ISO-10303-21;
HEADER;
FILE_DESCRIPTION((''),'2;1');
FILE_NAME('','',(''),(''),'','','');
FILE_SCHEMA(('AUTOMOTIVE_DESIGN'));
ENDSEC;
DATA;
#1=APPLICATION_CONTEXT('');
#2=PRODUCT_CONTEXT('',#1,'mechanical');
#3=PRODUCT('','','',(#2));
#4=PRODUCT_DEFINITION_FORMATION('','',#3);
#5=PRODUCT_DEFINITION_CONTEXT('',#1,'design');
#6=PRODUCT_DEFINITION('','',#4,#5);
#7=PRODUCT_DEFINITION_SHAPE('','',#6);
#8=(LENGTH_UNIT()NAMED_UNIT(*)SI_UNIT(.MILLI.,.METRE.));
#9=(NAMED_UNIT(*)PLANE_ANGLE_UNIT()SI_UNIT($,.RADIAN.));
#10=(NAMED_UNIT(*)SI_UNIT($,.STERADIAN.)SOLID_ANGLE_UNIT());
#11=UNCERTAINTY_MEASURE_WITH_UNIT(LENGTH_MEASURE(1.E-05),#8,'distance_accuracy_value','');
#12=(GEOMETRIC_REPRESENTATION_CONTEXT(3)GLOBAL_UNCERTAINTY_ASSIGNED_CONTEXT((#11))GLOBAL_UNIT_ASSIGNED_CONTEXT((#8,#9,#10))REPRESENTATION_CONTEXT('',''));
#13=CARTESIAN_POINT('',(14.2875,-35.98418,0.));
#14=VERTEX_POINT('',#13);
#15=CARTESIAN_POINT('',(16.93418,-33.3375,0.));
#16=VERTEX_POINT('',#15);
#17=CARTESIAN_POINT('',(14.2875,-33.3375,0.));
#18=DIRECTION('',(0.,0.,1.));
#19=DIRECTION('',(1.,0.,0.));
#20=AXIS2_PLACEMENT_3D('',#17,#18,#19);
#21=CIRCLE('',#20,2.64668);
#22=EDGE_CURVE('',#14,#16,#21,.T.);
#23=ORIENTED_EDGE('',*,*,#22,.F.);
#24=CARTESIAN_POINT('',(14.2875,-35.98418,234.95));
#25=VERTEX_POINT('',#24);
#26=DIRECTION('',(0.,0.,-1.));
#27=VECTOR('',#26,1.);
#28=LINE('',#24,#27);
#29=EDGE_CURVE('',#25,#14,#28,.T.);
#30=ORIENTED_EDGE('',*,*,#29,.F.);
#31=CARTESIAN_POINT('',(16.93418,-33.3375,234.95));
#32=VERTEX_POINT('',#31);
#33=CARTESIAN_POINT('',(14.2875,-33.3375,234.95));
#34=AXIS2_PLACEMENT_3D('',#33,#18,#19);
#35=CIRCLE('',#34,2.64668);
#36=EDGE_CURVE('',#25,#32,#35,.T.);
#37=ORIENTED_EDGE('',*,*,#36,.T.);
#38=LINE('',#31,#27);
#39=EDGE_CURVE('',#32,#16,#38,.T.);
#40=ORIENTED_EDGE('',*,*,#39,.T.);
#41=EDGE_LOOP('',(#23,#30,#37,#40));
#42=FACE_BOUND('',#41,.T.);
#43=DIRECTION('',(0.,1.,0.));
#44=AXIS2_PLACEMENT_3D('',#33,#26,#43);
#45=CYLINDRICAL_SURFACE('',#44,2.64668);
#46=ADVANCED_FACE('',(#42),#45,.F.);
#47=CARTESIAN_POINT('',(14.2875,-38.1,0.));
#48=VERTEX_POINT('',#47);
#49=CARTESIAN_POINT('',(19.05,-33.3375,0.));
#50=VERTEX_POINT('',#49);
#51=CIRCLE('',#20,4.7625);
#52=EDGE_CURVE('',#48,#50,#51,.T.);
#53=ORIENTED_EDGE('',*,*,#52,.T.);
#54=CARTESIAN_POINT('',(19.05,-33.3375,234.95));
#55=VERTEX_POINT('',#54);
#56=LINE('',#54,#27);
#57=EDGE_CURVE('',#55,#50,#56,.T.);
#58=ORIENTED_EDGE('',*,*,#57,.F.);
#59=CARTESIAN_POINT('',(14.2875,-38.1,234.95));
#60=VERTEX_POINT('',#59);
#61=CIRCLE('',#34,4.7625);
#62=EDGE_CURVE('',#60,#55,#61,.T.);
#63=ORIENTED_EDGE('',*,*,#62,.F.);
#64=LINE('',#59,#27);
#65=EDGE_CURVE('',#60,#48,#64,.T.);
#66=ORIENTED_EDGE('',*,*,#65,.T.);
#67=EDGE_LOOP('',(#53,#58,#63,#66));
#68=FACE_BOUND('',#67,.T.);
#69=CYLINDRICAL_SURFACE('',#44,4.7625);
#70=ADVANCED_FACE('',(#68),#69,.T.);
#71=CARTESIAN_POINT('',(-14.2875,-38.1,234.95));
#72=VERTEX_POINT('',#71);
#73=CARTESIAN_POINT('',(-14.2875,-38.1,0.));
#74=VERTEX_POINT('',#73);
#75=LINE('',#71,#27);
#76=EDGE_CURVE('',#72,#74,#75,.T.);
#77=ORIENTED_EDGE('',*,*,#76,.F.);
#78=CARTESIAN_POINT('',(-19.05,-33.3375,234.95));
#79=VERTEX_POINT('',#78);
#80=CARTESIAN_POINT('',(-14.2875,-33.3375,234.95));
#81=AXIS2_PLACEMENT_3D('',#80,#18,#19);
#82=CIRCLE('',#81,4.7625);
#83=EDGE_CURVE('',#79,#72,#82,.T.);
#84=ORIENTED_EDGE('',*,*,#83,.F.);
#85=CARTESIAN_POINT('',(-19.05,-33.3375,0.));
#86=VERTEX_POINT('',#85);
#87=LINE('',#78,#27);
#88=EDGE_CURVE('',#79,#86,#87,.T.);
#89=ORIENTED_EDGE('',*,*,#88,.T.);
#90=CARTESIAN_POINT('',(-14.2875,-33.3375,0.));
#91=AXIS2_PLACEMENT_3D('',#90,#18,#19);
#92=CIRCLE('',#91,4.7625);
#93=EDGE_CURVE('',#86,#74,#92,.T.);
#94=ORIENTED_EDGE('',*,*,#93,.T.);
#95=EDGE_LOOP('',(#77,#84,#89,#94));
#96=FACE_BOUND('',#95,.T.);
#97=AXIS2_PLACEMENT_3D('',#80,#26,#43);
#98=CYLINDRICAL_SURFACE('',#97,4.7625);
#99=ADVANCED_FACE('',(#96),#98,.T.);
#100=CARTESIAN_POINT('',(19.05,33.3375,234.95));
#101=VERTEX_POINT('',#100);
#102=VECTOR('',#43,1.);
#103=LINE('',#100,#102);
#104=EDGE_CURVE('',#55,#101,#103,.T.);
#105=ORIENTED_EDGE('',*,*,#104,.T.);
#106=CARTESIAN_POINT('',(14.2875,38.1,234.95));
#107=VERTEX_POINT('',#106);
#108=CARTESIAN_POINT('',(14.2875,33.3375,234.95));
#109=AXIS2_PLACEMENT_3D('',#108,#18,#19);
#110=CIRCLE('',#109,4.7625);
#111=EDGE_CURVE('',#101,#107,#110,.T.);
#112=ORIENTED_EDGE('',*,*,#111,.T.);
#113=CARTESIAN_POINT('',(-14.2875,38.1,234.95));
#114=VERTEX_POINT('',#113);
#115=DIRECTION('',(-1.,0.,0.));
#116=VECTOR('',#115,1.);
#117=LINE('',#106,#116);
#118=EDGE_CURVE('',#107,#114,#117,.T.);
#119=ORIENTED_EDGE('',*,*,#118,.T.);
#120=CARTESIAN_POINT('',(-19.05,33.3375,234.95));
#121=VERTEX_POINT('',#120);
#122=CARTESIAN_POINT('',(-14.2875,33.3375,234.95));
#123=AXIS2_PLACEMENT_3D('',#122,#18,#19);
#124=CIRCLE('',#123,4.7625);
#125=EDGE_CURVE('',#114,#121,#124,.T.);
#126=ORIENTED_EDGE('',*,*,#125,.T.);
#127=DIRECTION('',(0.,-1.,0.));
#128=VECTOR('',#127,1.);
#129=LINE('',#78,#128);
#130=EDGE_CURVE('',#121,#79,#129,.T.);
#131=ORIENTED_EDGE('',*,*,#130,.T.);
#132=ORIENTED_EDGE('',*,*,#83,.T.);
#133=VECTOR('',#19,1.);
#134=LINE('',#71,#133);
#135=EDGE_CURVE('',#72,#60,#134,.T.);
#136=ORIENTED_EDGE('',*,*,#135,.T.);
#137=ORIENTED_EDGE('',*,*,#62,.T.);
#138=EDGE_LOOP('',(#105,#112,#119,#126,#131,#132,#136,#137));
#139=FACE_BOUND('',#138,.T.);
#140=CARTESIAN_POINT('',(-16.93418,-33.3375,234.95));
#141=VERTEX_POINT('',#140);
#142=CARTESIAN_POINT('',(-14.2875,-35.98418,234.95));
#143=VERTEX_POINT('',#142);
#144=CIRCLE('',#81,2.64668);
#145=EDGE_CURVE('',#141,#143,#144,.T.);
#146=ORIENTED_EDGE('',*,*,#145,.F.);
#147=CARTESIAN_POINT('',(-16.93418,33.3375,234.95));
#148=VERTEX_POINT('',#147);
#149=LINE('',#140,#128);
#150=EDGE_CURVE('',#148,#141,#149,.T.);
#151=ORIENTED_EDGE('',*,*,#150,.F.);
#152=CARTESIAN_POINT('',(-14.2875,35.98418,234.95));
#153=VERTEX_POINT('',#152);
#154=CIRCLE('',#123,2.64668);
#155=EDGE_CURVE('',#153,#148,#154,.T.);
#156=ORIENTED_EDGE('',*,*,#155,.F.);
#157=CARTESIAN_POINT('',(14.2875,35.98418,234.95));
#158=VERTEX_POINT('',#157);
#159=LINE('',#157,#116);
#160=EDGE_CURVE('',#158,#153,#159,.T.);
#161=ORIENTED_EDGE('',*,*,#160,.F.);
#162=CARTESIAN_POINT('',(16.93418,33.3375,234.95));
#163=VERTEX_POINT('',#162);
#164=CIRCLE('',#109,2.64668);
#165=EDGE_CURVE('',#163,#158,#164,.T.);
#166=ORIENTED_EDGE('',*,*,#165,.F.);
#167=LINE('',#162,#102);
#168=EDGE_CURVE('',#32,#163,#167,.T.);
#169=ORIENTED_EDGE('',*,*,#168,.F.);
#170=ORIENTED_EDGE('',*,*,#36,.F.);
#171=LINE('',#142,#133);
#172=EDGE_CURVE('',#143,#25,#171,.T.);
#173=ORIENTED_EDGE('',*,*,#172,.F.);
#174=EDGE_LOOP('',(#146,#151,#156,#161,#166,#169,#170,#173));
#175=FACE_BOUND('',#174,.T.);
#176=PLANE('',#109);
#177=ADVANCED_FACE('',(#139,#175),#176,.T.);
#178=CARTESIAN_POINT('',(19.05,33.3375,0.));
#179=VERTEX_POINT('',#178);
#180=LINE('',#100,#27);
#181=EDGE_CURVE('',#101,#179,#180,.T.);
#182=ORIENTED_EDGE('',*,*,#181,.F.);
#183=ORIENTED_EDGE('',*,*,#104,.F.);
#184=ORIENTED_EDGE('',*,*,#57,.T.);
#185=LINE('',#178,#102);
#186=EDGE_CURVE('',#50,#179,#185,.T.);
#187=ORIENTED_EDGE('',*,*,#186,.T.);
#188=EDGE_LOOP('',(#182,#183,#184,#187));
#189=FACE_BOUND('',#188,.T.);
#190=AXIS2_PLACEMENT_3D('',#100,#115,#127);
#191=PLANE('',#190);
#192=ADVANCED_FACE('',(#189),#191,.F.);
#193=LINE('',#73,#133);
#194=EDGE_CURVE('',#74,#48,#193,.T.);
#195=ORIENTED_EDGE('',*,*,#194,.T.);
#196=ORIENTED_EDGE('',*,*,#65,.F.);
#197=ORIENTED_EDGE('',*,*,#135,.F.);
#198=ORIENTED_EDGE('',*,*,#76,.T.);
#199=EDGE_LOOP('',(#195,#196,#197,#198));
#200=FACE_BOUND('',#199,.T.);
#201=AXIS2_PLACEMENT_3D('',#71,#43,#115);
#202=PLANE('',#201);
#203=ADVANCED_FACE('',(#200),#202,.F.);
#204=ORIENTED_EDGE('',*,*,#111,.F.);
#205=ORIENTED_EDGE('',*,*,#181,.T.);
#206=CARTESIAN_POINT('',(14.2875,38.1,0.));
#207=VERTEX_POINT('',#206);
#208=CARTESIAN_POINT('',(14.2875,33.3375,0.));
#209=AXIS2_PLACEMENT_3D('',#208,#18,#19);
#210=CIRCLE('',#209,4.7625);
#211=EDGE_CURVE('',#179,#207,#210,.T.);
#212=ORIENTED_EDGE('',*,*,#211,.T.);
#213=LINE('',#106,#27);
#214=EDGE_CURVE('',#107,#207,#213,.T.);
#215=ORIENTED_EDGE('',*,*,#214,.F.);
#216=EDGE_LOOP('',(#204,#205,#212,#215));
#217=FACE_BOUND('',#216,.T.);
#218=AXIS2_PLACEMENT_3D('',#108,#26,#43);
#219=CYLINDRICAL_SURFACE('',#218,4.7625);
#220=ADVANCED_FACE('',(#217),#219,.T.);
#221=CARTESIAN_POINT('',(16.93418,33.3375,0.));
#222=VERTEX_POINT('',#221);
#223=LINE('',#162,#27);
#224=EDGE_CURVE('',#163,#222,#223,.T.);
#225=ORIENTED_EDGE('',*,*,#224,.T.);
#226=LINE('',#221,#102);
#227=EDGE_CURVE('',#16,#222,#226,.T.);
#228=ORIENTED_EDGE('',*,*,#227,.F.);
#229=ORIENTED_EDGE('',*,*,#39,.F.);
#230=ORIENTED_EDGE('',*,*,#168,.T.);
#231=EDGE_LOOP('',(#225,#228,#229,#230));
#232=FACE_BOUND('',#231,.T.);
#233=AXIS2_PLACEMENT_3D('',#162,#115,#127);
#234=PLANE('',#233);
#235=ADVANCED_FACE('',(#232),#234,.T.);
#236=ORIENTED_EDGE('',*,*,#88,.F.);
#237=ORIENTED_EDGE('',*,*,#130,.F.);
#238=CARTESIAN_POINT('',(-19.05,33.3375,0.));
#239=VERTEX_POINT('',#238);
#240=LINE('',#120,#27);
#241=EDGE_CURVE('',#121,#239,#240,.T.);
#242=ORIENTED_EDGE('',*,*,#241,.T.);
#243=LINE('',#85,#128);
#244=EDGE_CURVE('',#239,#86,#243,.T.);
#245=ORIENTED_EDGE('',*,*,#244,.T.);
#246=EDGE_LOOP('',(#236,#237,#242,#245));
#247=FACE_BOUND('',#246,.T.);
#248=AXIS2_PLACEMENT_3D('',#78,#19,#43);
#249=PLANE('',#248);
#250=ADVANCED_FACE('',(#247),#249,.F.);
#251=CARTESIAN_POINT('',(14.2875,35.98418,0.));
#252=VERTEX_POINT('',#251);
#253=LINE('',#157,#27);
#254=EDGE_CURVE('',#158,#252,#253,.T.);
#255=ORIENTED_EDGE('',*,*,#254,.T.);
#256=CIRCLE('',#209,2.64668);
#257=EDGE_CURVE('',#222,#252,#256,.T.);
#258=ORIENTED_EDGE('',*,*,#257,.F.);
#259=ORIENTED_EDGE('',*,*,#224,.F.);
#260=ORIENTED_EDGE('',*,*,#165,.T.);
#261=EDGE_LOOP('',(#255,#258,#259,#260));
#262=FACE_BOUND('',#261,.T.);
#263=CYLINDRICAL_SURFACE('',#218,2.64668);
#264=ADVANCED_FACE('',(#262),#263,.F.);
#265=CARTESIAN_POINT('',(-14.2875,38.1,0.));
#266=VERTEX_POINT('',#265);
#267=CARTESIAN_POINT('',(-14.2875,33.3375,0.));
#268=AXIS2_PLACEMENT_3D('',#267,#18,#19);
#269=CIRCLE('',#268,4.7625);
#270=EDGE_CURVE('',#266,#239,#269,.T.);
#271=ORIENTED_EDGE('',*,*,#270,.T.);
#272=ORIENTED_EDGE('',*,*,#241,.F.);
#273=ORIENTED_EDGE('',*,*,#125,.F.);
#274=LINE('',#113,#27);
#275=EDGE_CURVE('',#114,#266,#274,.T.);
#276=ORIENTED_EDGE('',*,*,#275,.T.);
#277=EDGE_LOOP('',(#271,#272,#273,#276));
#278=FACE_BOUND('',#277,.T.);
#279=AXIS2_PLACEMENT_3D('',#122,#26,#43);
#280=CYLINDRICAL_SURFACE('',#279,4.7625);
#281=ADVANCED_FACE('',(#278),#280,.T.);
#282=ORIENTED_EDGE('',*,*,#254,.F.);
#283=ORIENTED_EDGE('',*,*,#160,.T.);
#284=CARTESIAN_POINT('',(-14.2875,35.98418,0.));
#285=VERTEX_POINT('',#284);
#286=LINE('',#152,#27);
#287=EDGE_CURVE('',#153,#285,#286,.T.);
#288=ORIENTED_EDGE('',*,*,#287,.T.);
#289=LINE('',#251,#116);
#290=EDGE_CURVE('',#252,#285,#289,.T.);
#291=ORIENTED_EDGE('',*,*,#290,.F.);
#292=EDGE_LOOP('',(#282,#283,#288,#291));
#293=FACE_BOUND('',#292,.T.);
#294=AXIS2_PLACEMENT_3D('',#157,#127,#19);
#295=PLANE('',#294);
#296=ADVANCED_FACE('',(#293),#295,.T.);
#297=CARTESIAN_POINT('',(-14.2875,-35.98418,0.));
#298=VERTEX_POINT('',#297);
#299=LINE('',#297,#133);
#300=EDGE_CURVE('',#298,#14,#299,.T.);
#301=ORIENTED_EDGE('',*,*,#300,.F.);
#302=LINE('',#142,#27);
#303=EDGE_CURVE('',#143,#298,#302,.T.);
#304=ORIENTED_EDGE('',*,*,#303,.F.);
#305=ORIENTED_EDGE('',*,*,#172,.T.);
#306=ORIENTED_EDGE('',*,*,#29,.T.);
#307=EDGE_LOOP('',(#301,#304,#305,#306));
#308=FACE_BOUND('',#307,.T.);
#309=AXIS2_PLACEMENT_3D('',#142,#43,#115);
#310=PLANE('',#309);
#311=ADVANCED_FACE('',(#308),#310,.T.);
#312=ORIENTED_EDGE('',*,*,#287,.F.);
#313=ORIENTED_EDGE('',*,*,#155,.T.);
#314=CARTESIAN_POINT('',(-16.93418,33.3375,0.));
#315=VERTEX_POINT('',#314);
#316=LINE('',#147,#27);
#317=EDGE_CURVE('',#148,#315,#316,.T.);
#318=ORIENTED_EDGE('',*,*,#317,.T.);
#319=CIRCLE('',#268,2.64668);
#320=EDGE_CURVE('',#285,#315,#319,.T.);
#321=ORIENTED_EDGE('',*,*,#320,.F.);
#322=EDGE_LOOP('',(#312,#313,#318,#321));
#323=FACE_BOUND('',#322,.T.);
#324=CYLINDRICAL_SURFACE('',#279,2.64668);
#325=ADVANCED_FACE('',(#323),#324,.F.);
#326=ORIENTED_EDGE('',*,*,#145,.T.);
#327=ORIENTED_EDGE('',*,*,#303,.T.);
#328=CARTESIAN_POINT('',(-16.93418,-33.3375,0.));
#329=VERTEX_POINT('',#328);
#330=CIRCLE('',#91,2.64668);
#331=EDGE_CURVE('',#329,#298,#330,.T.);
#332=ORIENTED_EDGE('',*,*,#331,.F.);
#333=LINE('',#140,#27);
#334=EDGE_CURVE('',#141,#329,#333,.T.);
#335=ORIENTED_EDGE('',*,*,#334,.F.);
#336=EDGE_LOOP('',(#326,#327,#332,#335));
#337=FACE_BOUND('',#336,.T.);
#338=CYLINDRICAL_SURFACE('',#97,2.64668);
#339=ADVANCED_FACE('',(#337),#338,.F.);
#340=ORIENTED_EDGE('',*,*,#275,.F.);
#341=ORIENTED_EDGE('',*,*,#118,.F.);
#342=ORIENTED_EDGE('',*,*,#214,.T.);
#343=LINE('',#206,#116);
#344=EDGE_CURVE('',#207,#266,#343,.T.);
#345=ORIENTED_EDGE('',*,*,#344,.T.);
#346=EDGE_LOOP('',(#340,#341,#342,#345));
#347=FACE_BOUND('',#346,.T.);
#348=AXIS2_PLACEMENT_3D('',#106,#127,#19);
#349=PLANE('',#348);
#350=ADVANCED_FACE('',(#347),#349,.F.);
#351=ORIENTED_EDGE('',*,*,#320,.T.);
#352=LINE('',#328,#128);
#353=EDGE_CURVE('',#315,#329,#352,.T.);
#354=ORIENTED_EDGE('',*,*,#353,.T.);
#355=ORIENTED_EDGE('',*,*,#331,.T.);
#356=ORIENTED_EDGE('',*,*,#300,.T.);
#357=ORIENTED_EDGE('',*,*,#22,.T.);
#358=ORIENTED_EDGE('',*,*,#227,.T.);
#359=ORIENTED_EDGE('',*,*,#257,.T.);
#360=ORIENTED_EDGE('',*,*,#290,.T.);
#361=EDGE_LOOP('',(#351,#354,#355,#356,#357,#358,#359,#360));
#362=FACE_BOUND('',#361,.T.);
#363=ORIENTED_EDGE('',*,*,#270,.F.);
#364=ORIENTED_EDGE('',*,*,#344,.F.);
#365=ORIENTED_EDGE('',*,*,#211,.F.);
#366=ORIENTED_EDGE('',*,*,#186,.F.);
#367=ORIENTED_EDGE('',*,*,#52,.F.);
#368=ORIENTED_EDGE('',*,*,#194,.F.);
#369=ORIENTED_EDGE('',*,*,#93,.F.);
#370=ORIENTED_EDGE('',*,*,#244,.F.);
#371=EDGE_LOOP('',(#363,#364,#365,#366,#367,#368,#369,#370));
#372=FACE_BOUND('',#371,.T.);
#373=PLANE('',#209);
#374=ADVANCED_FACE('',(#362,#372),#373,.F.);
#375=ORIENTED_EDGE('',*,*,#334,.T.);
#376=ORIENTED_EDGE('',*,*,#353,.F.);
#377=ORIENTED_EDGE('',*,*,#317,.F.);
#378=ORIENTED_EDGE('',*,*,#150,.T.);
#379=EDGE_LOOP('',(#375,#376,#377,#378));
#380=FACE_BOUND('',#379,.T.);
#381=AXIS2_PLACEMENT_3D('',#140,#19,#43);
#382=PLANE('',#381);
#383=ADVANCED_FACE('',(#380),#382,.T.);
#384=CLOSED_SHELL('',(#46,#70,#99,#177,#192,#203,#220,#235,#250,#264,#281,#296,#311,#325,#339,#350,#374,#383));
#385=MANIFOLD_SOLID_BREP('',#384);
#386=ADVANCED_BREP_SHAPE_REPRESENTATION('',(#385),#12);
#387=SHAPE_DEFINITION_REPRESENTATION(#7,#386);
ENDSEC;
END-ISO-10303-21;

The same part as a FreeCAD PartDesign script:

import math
import FreeCAD as App
import Part
import Sketcher
from FreeCAD import Vector
Q = App.Units.Quantity

doc = App.newDocument("Part")
body = doc.addObject("PartDesign::Body", "Body")

# Sketch on XY plane
sketch1 = body.newObject("Sketcher::SketchObject", "Sketch")
sketch1.AttachmentSupport = (doc.getObject("XY_Plane"), [""])
sketch1.MapMode = "FlatFace"
sketch1.addGeometry([
    Part.LineSegment(Vector(-14.3, -38.1, 0), Vector(14.3, -38.1, 0)),  # 0
    Part.ArcOfCircle(Part.Circle(Vector(14.3, -33.3, 0), Vector(0, 0, 1), 4.8), math.radians(-90), math.radians(0)),  # 1
    Part.LineSegment(Vector(19.1, -33.3, 0), Vector(19.1, 33.3, 0)),  # 2
    Part.ArcOfCircle(Part.Circle(Vector(14.3, 33.3, 0), Vector(0, 0, 1), 4.8), math.radians(0), math.radians(90)),  # 3
    Part.LineSegment(Vector(14.3, 38.1, 0), Vector(-14.3, 38.1, 0)),  # 4
    Part.ArcOfCircle(Part.Circle(Vector(-14.3, 33.3, 0), Vector(0, 0, 1), 4.8), math.radians(90), math.radians(180)),  # 5
    Part.LineSegment(Vector(-19.1, 33.3, 0), Vector(-19.1, -33.3, 0)),  # 6
    Part.ArcOfCircle(Part.Circle(Vector(-14.3, -33.3, 0), Vector(0, 0, 1), 4.8), math.radians(-180), math.radians(-90)),  # 7
    Part.LineSegment(Vector(14.3, -36, 0), Vector(-14.3, -36, 0)),  # 8
    Part.ArcOfCircle(Part.Circle(Vector(-14.3, -33.3, 0), Vector(0, 0, 1), 2.6), math.radians(180), math.radians(270)),  # 9
    Part.LineSegment(Vector(-16.9, -33.3, 0), Vector(-16.9, 33.3, 0)),  # 10
    Part.ArcOfCircle(Part.Circle(Vector(-14.3, 33.3, 0), Vector(0, 0, 1), 2.6), math.radians(90), math.radians(180)),  # 11
    Part.LineSegment(Vector(-14.3, 36, 0), Vector(14.3, 36, 0)),  # 12
    Part.ArcOfCircle(Part.Circle(Vector(14.3, 33.3, 0), Vector(0, 0, 1), 2.6), math.radians(0), math.radians(90)),  # 13
    Part.LineSegment(Vector(16.9, 33.3, 0), Vector(16.9, -33.3, 0)),  # 14
    Part.ArcOfCircle(Part.Circle(Vector(14.3, -33.3, 0), Vector(0, 0, 1), 2.6), math.radians(-90), math.radians(0)),  # 15
], False)
sketch1.addConstraint([
    Sketcher.Constraint("Tangent", 0, 2, 1, 1),
    Sketcher.Constraint("Tangent", 1, 2, 2, 1),
    Sketcher.Constraint("Tangent", 2, 2, 3, 1),
    Sketcher.Constraint("Tangent", 3, 2, 4, 1),
    Sketcher.Constraint("Tangent", 4, 2, 5, 1),
    Sketcher.Constraint("Tangent", 5, 2, 6, 1),
    Sketcher.Constraint("Tangent", 6, 2, 7, 1),
    Sketcher.Constraint("Tangent", 7, 2, 0, 1),
    Sketcher.Constraint("Tangent", 8, 2, 9, 2),
    Sketcher.Constraint("Tangent", 9, 1, 10, 1),
    Sketcher.Constraint("Tangent", 10, 2, 11, 2),
    Sketcher.Constraint("Tangent", 11, 1, 12, 1),
    Sketcher.Constraint("Tangent", 12, 2, 13, 2),
    Sketcher.Constraint("Tangent", 13, 1, 14, 1),
    Sketcher.Constraint("Tangent", 14, 2, 15, 2),
    Sketcher.Constraint("Tangent", 15, 1, 8, 1),
    Sketcher.Constraint("Horizontal", 0),
    Sketcher.Constraint("Vertical", 2),
    Sketcher.Constraint("Horizontal", 4),
    Sketcher.Constraint("Vertical", 6),
    Sketcher.Constraint("Horizontal", 8),
    Sketcher.Constraint("Vertical", 10),
    Sketcher.Constraint("Horizontal", 12),
    Sketcher.Constraint("Vertical", 14),
    Sketcher.Constraint("Coincident", 9, 3, 7, 3),
    Sketcher.Constraint("Coincident", 11, 3, 5, 3),
    Sketcher.Constraint("Coincident", 13, 3, 3, 3),
    Sketcher.Constraint("Equal", 1, 3),
    Sketcher.Constraint("Equal", 3, 5),
    Sketcher.Constraint("Equal", 5, 7),
    Sketcher.Constraint("Equal", 13, 15),
    Sketcher.Constraint("Symmetric", 1, 3, 5, 3, -1, 1),
    Sketcher.Constraint("Radius", 1, Q("0.1875 in")),
    Sketcher.Constraint("DistanceY", 0, 2, -1, 1, Q("1.5 in")),
    Sketcher.Constraint("Radius", 9, Q("0.1042 in")),
    Sketcher.Constraint("DistanceX", 0, 1, 0, 2, Q("1.125 in")),
])
pad1 = body.newObject("PartDesign::Pad", "Pad")
pad1.Profile = sketch1
pad1.Length = Q("9.25 in")

doc.recompute()
